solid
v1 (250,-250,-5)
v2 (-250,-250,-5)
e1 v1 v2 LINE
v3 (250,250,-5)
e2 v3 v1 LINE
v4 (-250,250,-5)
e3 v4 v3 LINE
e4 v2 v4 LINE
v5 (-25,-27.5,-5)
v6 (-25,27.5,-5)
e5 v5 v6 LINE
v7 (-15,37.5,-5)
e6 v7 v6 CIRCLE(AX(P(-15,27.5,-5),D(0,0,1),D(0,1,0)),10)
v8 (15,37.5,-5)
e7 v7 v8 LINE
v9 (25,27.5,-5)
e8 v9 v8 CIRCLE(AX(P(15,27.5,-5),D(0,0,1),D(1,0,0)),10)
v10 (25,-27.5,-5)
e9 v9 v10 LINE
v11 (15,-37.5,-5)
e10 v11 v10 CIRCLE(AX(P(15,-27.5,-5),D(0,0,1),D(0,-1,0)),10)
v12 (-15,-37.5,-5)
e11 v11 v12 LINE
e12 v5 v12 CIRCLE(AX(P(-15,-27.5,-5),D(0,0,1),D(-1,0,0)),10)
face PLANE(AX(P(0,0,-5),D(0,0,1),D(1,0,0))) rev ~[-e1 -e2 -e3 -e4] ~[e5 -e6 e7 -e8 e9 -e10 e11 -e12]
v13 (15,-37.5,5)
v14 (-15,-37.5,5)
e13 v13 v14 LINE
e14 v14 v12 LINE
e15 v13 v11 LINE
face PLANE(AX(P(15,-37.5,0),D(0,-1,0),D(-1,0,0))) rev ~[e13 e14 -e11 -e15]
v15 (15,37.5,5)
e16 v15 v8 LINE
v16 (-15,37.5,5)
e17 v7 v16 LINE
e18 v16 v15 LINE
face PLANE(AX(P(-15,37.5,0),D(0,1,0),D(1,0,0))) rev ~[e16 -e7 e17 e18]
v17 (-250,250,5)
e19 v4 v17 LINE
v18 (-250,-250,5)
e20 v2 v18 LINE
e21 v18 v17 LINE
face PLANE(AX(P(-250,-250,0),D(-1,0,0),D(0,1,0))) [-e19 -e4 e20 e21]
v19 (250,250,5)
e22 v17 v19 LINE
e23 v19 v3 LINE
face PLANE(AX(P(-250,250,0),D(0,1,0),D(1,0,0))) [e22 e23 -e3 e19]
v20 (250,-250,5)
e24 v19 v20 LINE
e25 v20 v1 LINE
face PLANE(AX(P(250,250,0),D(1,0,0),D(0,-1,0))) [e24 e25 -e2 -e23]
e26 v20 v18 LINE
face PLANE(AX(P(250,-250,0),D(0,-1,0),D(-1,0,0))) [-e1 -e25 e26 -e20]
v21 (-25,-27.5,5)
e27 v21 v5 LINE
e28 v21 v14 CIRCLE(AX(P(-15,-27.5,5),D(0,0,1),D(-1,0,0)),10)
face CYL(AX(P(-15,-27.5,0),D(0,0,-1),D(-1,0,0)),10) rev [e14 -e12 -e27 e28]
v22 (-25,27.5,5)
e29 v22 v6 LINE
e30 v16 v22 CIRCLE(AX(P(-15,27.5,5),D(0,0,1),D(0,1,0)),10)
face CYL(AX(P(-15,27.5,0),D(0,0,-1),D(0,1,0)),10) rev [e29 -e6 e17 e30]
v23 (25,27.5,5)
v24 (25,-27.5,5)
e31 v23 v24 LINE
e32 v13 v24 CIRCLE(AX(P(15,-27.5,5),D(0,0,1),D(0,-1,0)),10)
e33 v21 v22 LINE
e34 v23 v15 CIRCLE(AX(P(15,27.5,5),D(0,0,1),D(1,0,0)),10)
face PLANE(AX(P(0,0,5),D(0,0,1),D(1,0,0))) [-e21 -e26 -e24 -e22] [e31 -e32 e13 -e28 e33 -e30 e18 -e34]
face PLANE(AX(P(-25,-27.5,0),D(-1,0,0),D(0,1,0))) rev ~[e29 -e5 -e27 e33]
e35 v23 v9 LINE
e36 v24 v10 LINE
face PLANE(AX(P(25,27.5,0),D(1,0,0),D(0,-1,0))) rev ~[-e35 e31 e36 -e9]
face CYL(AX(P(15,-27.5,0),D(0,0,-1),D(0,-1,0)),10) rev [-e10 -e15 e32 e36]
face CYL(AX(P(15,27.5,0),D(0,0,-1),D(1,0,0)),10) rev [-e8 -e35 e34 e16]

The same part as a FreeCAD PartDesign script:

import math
import FreeCAD as App
import Part
import Sketcher

V = App.Vector
Q = App.Units.Quantity


def add_polygon(sketch, points):
    """Adds a closed chain of lines whose ends are joined by coincident constraints."""
    first, n = sketch.GeometryCount, len(points)
    for a, b in zip(points, points[1:] + points[:1]):
        sketch.addGeometry(Part.LineSegment(App.Vector(*a, 0), App.Vector(*b, 0)), False)
    for i in range(n):
        sketch.addConstraint(Sketcher.Constraint("Coincident", first + i, 2, first + (i + 1) % n, 1))

doc = App.newDocument("Part")
params = doc.addObject("Spreadsheet::Sheet", "Params")
for row, (alias, value) in enumerate([
    ("sketch1_radius", "10 mm"),
    ("sketch1_width", "500 mm"),
    ("sketch1_height", "55 mm"),
    ("pad1_length", "10 mm"),
], start=1):
    params.set(f"A{row}", alias)
    params.set(f"B{row}", "=" + value)
    params.setAlias(f"B{row}", alias)

body = doc.addObject("PartDesign::Body", "Body")

# Sketch on XY plane
sketch1 = body.newObject("Sketcher::SketchObject", "Sketch")
sketch1.AttachmentSupport = (doc.getObject("XY_Plane"), [""])
sketch1.MapMode = "FlatFace"
add_polygon(sketch1, [(250, 250), (-250, 250), (-250, -250), (250, -250)])  # lines 0-3
sketch1.addGeometry(Part.ArcOfCircle(Part.Circle(V(-15, 27.5, 0), V(0, 0, 1), 10), math.radians(90), math.radians(180)), False)  # 4
sketch1.addGeometry(Part.LineSegment(V(-15, 37.5, 0), V(15, 37.5, 0)), False)  # 5
sketch1.addGeometry(Part.ArcOfCircle(Part.Circle(V(15, 27.5, 0), V(0, 0, 1), 10), math.radians(0), math.radians(90)), False)  # 6
sketch1.addGeometry(Part.LineSegment(V(25, 27.5, 0), V(25, -27.5, 0)), False)  # 7
sketch1.addGeometry(Part.ArcOfCircle(Part.Circle(V(15, -27.5, 0), V(0, 0, 1), 10), math.radians(-90), math.radians(0)), False)  # 8
sketch1.addGeometry(Part.LineSegment(V(15, -37.5, 0), V(-15, -37.5, 0)), False)  # 9
sketch1.addGeometry(Part.ArcOfCircle(Part.Circle(V(-15, -27.5, 0), V(0, 0, 1), 10), math.radians(180), math.radians(270)), False)  # 10
sketch1.addGeometry(Part.LineSegment(V(-25, -27.5, 0), V(-25, 27.5, 0)), False)  # 11
sketch1.addConstraint(Sketcher.Constraint("Tangent", 4, 1, 5, 1))
sketch1.addConstraint(Sketcher.Constraint("Tangent", 5, 2, 6, 2))
sketch1.addConstraint(Sketcher.Constraint("Tangent", 6, 1, 7, 1))
sketch1.addConstraint(Sketcher.Constraint("Tangent", 7, 2, 8, 2))
sketch1.addConstraint(Sketcher.Constraint("Tangent", 8, 1, 9, 1))
sketch1.addConstraint(Sketcher.Constraint("Tangent", 9, 2, 10, 2))
sketch1.addConstraint(Sketcher.Constraint("Tangent", 10, 1, 11, 1))
sketch1.addConstraint(Sketcher.Constraint("Tangent", 11, 2, 4, 2))
sketch1.addConstraint(Sketcher.Constraint("Horizontal", 0))
sketch1.addConstraint(Sketcher.Constraint("Vertical", 1))
sketch1.addConstraint(Sketcher.Constraint("Horizontal", 2))
sketch1.addConstraint(Sketcher.Constraint("Vertical", 3))
sketch1.addConstraint(Sketcher.Constraint("Horizontal", 5))
sketch1.addConstraint(Sketcher.Constraint("Vertical", 7))
sketch1.addConstraint(Sketcher.Constraint("Horizontal", 9))
sketch1.addConstraint(Sketcher.Constraint("Vertical", 11))
sketch1.addConstraint(Sketcher.Constraint("Equal", 4, 6))
sketch1.addConstraint(Sketcher.Constraint("Equal", 6, 8))
sketch1.addConstraint(Sketcher.Constraint("Equal", 8, 10))
sketch1.addConstraint(Sketcher.Constraint("Symmetric", 4, 3, 8, 3, -1, 1))
sketch1.addConstraint(Sketcher.Constraint("Symmetric", 0, 2, 2, 2, -1, 1))
sketch1.addConstraint(Sketcher.Constraint("Equal", 2, 1))
sketch1.addConstraint(Sketcher.Constraint("Radius", 4, Q("10 mm")))
sketch1.addConstraint(Sketcher.Constraint("DistanceX", 0, 2, 0, 1, Q("500 mm")))
sketch1.addConstraint(Sketcher.Constraint("DistanceX", 10, 1, 7, 2, Q("50 mm")))
sketch1.addConstraint(Sketcher.Constraint("DistanceY", 7, 2, 7, 1, Q("55 mm")))
sketch1.setExpression("Constraints[26]", "Params.sketch1_radius")
sketch1.setExpression("Constraints[27]", "Params.sketch1_width")
sketch1.setExpression("Constraints[29]", "Params.sketch1_height")
pad1 = body.newObject("PartDesign::Pad", "Pad")
pad1.Profile = sketch1
pad1.setExpression("Length", "Params.pad1_length")
pad1.Midplane = True

doc.recompute()
